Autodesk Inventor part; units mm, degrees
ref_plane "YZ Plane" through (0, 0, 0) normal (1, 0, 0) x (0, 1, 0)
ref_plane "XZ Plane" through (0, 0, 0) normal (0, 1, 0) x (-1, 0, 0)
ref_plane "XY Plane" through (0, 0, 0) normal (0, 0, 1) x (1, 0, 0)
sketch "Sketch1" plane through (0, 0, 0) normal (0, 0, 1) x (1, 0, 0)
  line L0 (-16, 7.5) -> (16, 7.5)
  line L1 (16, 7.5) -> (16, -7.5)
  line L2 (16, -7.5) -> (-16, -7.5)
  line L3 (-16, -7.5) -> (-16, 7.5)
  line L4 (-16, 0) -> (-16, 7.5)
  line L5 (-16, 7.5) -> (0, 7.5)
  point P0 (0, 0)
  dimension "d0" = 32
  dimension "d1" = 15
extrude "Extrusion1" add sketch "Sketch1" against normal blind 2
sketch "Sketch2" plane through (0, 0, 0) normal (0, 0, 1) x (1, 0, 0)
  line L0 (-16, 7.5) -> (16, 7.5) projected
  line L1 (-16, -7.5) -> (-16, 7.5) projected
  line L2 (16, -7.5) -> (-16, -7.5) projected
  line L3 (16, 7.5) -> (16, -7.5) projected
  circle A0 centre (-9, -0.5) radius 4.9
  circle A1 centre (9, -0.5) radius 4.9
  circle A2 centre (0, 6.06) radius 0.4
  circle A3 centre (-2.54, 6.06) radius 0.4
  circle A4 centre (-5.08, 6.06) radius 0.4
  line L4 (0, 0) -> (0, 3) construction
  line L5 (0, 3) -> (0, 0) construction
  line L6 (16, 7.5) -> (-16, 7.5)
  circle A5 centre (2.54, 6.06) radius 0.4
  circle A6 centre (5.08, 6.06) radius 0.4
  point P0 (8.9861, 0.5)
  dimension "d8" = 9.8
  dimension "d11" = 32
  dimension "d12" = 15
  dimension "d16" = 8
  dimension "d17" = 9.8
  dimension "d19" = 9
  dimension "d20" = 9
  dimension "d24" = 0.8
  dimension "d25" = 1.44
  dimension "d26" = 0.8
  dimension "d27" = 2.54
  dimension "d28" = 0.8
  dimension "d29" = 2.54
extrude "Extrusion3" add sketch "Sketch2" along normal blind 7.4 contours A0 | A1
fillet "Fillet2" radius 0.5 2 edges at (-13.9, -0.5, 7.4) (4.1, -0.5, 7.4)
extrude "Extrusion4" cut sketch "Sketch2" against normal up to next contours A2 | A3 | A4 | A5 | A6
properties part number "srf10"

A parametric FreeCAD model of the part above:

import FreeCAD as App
import Part
import Sketcher
Q = App.Units.Quantity


def edges_at(feature, points):
    """Names of the edges that pass closest to the given points."""
    edges = feature.Shape.Edges
    near = lambda p: min(range(len(edges)), key=lambda i: edges[i].distToShape(Part.Vertex(*p))[0])
    return sorted({f"Edge{near(p) + 1}" for p in points})

doc = App.newDocument("Part")
body = doc.addObject("PartDesign::Body", "Body")

sketch1 = body.newObject("Sketcher::SketchObject", "Sketch")
sketch1.AttachmentSupport = (doc.getObject("XY_Plane"), [""])
sketch1.MapMode = "FlatFace"
sketch1.addGeometry([
    Part.LineSegment(App.Vector(16, 7.5, 0), App.Vector(-16, 7.5, 0)),
    Part.LineSegment(App.Vector(-16, 7.5, 0), App.Vector(-16, -7.5, 0)),
    Part.LineSegment(App.Vector(-16, -7.5, 0), App.Vector(16, -7.5, 0)),
    Part.LineSegment(App.Vector(16, -7.5, 0), App.Vector(16, 7.5, 0)),
], False)
sketch1.addConstraint([
    Sketcher.Constraint("Coincident", 0, 2, 1, 1),
    Sketcher.Constraint("Coincident", 1, 2, 2, 1),
    Sketcher.Constraint("Coincident", 2, 2, 3, 1),
    Sketcher.Constraint("Coincident", 3, 2, 0, 1),
    Sketcher.Constraint("Horizontal", 0),
    Sketcher.Constraint("Vertical", 1),
    Sketcher.Constraint("Horizontal", 2),
    Sketcher.Constraint("Vertical", 3),
    Sketcher.Constraint("Symmetric", 0, 2, 2, 2, -1, 1),
    Sketcher.Constraint("DistanceX", 0, 2, 0, 1, Q("32 mm")),
    Sketcher.Constraint("DistanceY", 1, 2, 1, 1, Q("15 mm")),
])
pad1 = body.newObject("PartDesign::Pad", "Pad")
pad1.Profile = sketch1
pad1.Length = 2
pad1.Reversed = True

sketch2 = body.newObject("Sketcher::SketchObject", "Sketch001")
sketch2.AttachmentSupport = (doc.getObject("XY_Plane"), [""])
sketch2.MapMode = "FlatFace"
sketch2.addGeometry([
    Part.Circle(App.Vector(-9, -0.5, 0), App.Vector(0, 0, 1), 4.9),
    Part.Circle(App.Vector(9, -0.5, 0), App.Vector(0, 0, 1), 4.9),
], False)
sketch2.addConstraint([
    Sketcher.Constraint("Equal", 0, 1),
    Sketcher.Constraint("Symmetric", 0, 3, 1, 3, -2),
    Sketcher.Constraint("Diameter", 0, Q("9.8 mm")),
    Sketcher.Constraint("DistanceX", 0, 3, -1, 1, Q("9 mm")),
    Sketcher.Constraint("DistanceY", 0, 3, -1, 1, Q("0.5 mm")),
])
pad2 = body.newObject("PartDesign::Pad", "Pad001")
pad2.Profile = sketch2
pad2.Length = 7.4
doc.recompute()

fillet = body.newObject("PartDesign::Fillet", "Fillet")
fillet.Base = (pad2, edges_at(pad2, [(-13.9, -0.5, 7.4), (4.1, -0.5, 7.4)]))
fillet.Radius = 0.5

sketch3 = body.newObject("Sketcher::SketchObject", "Sketch002")
sketch3.AttachmentSupport = (doc.getObject("XY_Plane"), [""])
sketch3.MapMode = "FlatFace"
sketch3.addGeometry([
    Part.Circle(App.Vector(0, 6.06, 0), App.Vector(0, 0, 1), 0.4),
    Part.Circle(App.Vector(-2.54, 6.06, 0), App.Vector(0, 0, 1), 0.4),
    Part.Circle(App.Vector(-5.08, 6.06, 0), App.Vector(0, 0, 1), 0.4),
    Part.Circle(App.Vector(2.54, 6.06, 0), App.Vector(0, 0, 1), 0.4),
    Part.Circle(App.Vector(5.08, 6.06, 0), App.Vector(0, 0, 1), 0.4),
], False)
sketch3.addConstraint([
    Sketcher.Constraint("Equal", 0, 1),
    Sketcher.Constraint("Equal", 1, 2),
    Sketcher.Constraint("Equal", 2, 3),
    Sketcher.Constraint("Equal", 3, 4),
    Sketcher.Constraint("Symmetric", 1, 3, 3, 3, -2),
    Sketcher.Constraint("Symmetric", 2, 3, 4, 3, -2),
    Sketcher.Constraint("PointOnObject", 0, 3, -2),
    Sketcher.Constraint("Horizontal", 0, 3, 1, 3),
    Sketcher.Constraint("Horizontal", 1, 3, 2, 3),
    Sketcher.Constraint("Diameter", 0, Q("0.8 mm")),
    Sketcher.Constraint("DistanceX", 1, 3, -1, 1, Q("2.54 mm")),
    Sketcher.Constraint("DistanceX", 2, 3, 1, 3, Q("2.54 mm")),
    Sketcher.Constraint("DistanceY", -1, 1, 0, 3, Q("6.06 mm")),
])
pocket1 = body.newObject("PartDesign::Pocket", "Pocket")
pocket1.Profile = sketch3
pocket1.Type = "UpToFirst"

doc.recompute()
